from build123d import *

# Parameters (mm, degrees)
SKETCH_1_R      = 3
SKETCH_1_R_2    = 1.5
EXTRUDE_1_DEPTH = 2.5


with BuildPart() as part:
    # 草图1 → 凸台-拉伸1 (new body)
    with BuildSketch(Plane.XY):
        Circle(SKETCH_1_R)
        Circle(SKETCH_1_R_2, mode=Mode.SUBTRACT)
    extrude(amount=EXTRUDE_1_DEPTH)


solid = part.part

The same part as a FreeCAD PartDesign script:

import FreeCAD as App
import Part
import Sketcher
from FreeCAD import Vector

doc = App.newDocument("Part")
body = doc.addObject("PartDesign::Body", "Body")

# Sketch on XY plane
sketch1 = body.newObject("Sketcher::SketchObject", "Sketch")
sketch1.AttachmentSupport = (doc.getObject("XY_Plane"), [""])
sketch1.MapMode = "FlatFace"
sketch1.addGeometry([
    Part.Circle(Vector(0, 0, 0), Vector(0, 0, 1), 3),
    Part.Circle(Vector(0, 0, 0), Vector(0, 0, 1), 1.5),
], False)
sketch1.addConstraint([
    Sketcher.Constraint("Coincident", 0, 3, -1, 1),
    Sketcher.Constraint("Coincident", 1, 3, -1, 1),
    Sketcher.Constraint("Diameter", 0, 6.0),
    Sketcher.Constraint("Diameter", 1, 3.0),
])
pad1 = body.newObject("PartDesign::Pad", "Pad")
pad1.Profile = sketch1
pad1.Length = 2.5

doc.recompute()
